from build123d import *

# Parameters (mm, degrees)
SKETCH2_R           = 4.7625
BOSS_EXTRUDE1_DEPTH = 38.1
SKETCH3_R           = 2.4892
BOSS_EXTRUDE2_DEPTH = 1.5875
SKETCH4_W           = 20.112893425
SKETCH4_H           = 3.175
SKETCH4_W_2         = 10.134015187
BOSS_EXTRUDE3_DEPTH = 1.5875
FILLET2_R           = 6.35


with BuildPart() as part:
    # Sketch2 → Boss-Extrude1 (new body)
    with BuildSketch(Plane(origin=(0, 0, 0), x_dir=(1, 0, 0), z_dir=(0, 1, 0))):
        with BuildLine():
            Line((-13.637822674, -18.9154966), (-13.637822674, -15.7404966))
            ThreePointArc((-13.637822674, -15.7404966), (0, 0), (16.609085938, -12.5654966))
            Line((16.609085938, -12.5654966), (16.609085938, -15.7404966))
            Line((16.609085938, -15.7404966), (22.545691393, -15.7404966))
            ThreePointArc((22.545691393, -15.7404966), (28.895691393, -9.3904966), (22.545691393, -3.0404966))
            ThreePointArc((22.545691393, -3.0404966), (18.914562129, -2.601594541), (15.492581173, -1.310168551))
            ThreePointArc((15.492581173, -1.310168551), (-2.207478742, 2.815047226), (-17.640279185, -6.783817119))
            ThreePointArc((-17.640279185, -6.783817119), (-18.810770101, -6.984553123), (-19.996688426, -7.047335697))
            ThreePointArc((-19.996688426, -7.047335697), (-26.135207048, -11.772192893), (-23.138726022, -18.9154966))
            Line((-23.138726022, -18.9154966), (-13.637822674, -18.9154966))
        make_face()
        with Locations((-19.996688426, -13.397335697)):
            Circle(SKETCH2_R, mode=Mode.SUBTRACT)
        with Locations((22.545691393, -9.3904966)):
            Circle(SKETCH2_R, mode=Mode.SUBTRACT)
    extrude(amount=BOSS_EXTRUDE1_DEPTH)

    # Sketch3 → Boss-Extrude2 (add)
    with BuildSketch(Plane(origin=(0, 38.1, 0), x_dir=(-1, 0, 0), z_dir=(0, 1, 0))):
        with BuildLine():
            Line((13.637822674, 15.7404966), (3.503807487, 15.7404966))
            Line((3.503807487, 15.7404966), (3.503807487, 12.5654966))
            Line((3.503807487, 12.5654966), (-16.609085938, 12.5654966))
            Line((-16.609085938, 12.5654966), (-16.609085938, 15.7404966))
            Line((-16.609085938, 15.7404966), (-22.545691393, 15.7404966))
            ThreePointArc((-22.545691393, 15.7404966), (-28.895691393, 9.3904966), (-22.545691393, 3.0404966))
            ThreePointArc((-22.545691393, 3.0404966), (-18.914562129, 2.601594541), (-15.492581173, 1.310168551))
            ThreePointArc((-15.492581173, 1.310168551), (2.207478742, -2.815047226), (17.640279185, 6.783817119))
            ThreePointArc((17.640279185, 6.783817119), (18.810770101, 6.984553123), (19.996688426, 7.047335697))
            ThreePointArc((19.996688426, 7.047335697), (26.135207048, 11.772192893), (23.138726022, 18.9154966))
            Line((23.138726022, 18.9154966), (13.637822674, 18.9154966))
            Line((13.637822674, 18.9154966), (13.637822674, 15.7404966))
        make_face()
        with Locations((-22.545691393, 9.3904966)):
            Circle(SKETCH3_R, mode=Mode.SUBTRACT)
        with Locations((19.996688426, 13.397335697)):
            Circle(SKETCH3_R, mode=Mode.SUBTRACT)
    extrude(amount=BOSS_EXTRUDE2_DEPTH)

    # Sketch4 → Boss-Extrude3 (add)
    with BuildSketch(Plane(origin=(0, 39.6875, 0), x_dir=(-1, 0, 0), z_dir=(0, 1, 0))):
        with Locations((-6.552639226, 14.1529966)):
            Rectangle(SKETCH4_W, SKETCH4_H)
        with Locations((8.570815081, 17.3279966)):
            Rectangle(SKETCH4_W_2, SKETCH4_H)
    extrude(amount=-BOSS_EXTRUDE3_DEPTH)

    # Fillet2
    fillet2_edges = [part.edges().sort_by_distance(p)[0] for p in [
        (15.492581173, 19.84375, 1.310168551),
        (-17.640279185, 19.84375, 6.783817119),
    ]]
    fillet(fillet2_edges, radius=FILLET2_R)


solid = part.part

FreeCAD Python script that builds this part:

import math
import FreeCAD as App
import Part
import Sketcher
from FreeCAD import Vector
Q = App.Units.Quantity


def edges_at(feature, points):
    """Names of the edges that pass closest to the given points."""
    edges = feature.Shape.Edges
    near = lambda p: min(range(len(edges)), key=lambda i: edges[i].distToShape(Part.Vertex(*p))[0])
    return sorted({f"Edge{near(p) + 1}" for p in points})


def add_polygon(sketch, points):
    """Adds a closed chain of lines whose ends are joined by coincident constraints."""
    first, n = sketch.GeometryCount, len(points)
    for a, b in zip(points, points[1:] + points[:1]):
        sketch.addGeometry(Part.LineSegment(App.Vector(*a, 0), App.Vector(*b, 0)), False)
    for i in range(n):
        sketch.addConstraint(Sketcher.Constraint("Coincident", first + i, 2, first + (i + 1) % n, 1))

doc = App.newDocument("Part")
params = doc.addObject("Spreadsheet::Sheet", "Params")
for row, (alias, value) in enumerate([
    ("sketch1_radius", "0.6 in"),
    ("sketch1_radius2", "0.4 in"),
    ("sketch1_radius3", "0.25 in"),
    ("sketch1_diameter", "0.375 in"),
    ("sketch1_height", "0.125 in"),
    ("pad1_length", "1.5 in"),
    ("sketch2_radius", "0.6 in"),
    ("sketch2_radius2", "0.4 in"),
    ("sketch2_radius3", "0.25 in"),
    ("sketch2_diameter", "0.196 in"),
    ("sketch2_height", "0.125 in"),
    ("pad2_length", "0.0625 in"),
    ("sketch3_height", "0.125 in"),
    ("pad3_length", "0.0625 in"),
    ("fillet_radius", "0.25 in"),
], start=1):
    params.set(f"A{row}", alias)
    params.set(f"B{row}", "=" + value)
    params.setAlias(f"B{row}", alias)

body = doc.addObject("PartDesign::Body", "Body")

sketch1 = body.newObject("Sketcher::SketchObject", "Sketch")
sketch1.AttachmentSupport = (doc.getObject("XZ_Plane"), [""])
sketch1.MapMode = "FlatFace"
sketch1.addGeometry(Part.LineSegment(Vector(-13.6, 18.9, 0), Vector(-13.6, 15.7, 0)), False)
sketch1.addGeometry(Part.ArcOfCircle(Part.Circle(Vector(1.6, 15.2, 0), Vector(0, 0, 1), 15.2), math.radians(178), math.radians(350)), False)
sketch1.addGeometry(Part.LineSegment(Vector(16.6, 12.6, 0), Vector(16.6, 15.7, 0)), False)
sketch1.addGeometry(Part.LineSegment(Vector(16.6, 15.7, 0), Vector(22.5, 15.7, 0)), False)
sketch1.addGeometry(Part.ArcOfCircle(Part.Circle(Vector(22.5, 9.4, 0), Vector(0, 0, 1), 6.3), math.radians(-90), math.radians(90)), False)
sketch1.addGeometry(Part.ArcOfCircle(Part.Circle(Vector(22.5, -12.2, 0), Vector(0, 0, 1), 15.2), math.radians(90), math.radians(118)), False)
sketch1.addGeometry(Part.ArcOfCircle(Part.Circle(Vector(1.7, 20.6, 0), Vector(0, 0, 1), 23.7), math.radians(-144), math.radians(-54)), False)
sketch1.addGeometry(Part.ArcOfCircle(Part.Circle(Vector(-19.9, -3.1, 0), Vector(0, 0, 1), 10.2), math.radians(76.92), math.radians(90.32)), False)
sketch1.addGeometry(Part.ArcOfCircle(Part.Circle(Vector(-20, 13.4, 0), Vector(0, 0, 1), 6.3), math.radians(120), math.radians(270)), False)
sketch1.addGeometry(Part.LineSegment(Vector(-23.1, 18.9, 0), Vector(-13.6, 18.9, 0)), False)
sketch1.addGeometry(Part.Circle(Vector(-20, 13.4, 0), Vector(0, 0, 1), 4.8), False)
sketch1.addGeometry(Part.Circle(Vector(22.5, 9.4, 0), Vector(0, 0, 1), 4.8), False)
sketch1.addConstraint(Sketcher.Constraint("Coincident", 0, 2, 1, 1))
sketch1.addConstraint(Sketcher.Constraint("Coincident", 1, 2, 2, 1))
sketch1.addConstraint(Sketcher.Constraint("Coincident", 2, 2, 3, 1))
sketch1.addConstraint(Sketcher.Constraint("Tangent", 3, 2, 4, 2))
sketch1.addConstraint(Sketcher.Constraint("Tangent", 4, 1, 5, 1))
sketch1.addConstraint(Sketcher.Constraint("Coincident", 5, 2, 6, 2))
sketch1.addConstraint(Sketcher.Constraint("Coincident", 6, 1, 7, 1))
sketch1.addConstraint(Sketcher.Constraint("Coincident", 7, 2, 8, 2))
sketch1.addConstraint(Sketcher.Constraint("Coincident", 8, 1, 9, 1))
sketch1.addConstraint(Sketcher.Constraint("Coincident", 9, 2, 0, 1))
sketch1.addConstraint(Sketcher.Constraint("Vertical", 0))
sketch1.addConstraint(Sketcher.Constraint("Vertical", 2))
sketch1.addConstraint(Sketcher.Constraint("Horizontal", 3))
sketch1.addConstraint(Sketcher.Constraint("Horizontal", 9))
sketch1.addConstraint(Sketcher.Constraint("Coincident", 10, 3, 8, 3))
sketch1.addConstraint(Sketcher.Constraint("Coincident", 11, 3, 4, 3))
sketch1.addConstraint(Sketcher.Constraint("Equal", 1, 5))
sketch1.addConstraint(Sketcher.Constraint("Equal", 4, 8))
sketch1.addConstraint(Sketcher.Constraint("Equal", 10, 11))
sketch1.addConstraint(Sketcher.Constraint("Horizontal", 0, 2, 2, 2))
sketch1.addConstraint(Sketcher.Constraint("Vertical", 4, 3, 5, 3))
sketch1.addConstraint(Sketcher.Constraint("Vertical", 10, 3, 7, 2))
sketch1.addConstraint(Sketcher.Constraint("Equal", 0, 2))
sketch1.addConstraint(Sketcher.Constraint("Radius", 1, Q("0.6 in")))
sketch1.addConstraint(Sketcher.Constraint("Radius", 7, Q("0.4 in")))
sketch1.addConstraint(Sketcher.Constraint("Radius", 4, Q("0.25 in")))
sketch1.addConstraint(Sketcher.Constraint("Diameter", 10, Q("0.375 in")))
sketch1.addConstraint(Sketcher.Constraint("DistanceY", 0, 2, 0, 1, Q("0.125 in")))
sketch1.addConstraint(Sketcher.Constraint("Radius", 6, Q("23.746023 mm")))
sketch1.addConstraint(Sketcher.Constraint("DistanceX", 1, 3, 4, 3, Q("20.954699 mm")))
sketch1.addConstraint(Sketcher.Constraint("DistanceX", 3, 1, 3, 2, Q("5.936605 mm")))
sketch1.addConstraint(Sketcher.Constraint("DistanceX", 9, 1, 9, 2, Q("9.500903 mm")))
sketch1.addConstraint(Sketcher.Constraint("DistanceX", -1, 1, 4, 3, Q("22.545691 mm")))
sketch1.addConstraint(Sketcher.Constraint("DistanceX", 7, 3, -1, 1, Q("19.93993 mm")))
sketch1.addConstraint(Sketcher.Constraint("DistanceX", 8, 3, -1, 1, Q("19.996688 mm")))
sketch1.addConstraint(Sketcher.Constraint("DistanceX", -1, 1, 5, 2, Q("15.492581 mm")))
sketch1.addConstraint(Sketcher.Constraint("DistanceY", -1, 1, 5, 2, Q("1.310169 mm")))
sketch1.addConstraint(Sketcher.Constraint("DistanceX", 6, 1, -1, 1, Q("17.640279 mm")))
sketch1.setExpression("Constraints[23]", "Params.sketch1_radius")
sketch1.setExpression("Constraints[24]", "Params.sketch1_radius2")
sketch1.setExpression("Constraints[25]", "Params.sketch1_radius3")
sketch1.setExpression("Constraints[26]", "Params.sketch1_diameter")
sketch1.setExpression("Constraints[27]", "Params.sketch1_height")
pad1 = body.newObject("PartDesign::Pad", "Pad")
pad1.Profile = sketch1
pad1.setExpression("Length", "Params.pad1_length")
pad1.Reversed = True

sketch2 = body.newObject("Sketcher::SketchObject", "Sketch001")
sketch2.AttachmentSupport = (doc.getObject("XZ_Plane"), [""])
sketch2.MapMode = "FlatFace"
sketch2.AttachmentOffset = App.Placement(Vector(0, 0, -1.5 * 25.4), App.Rotation())
sketch2.addGeometry(Part.LineSegment(Vector(-13.6, 15.7, 0), Vector(-3.5, 15.7, 0)), False)
sketch2.addGeometry(Part.LineSegment(Vector(-3.5, 15.7, 0), Vector(-3.5, 12.6, 0)), False)
sketch2.addGeometry(Part.LineSegment(Vector(-3.5, 12.6, 0), Vector(16.6, 12.6, 0)), False)
sketch2.addGeometry(Part.LineSegment(Vector(16.6, 12.6, 0), Vector(16.6, 15.7, 0)), False)
sketch2.addGeometry(Part.LineSegment(Vector(16.6, 15.7, 0), Vector(22.5, 15.7, 0)), False)
sketch2.addGeometry(Part.ArcOfCircle(Part.Circle(Vector(22.5, 9.4, 0), Vector(0, 0, 1), 6.3), math.radians(-90), math.radians(90)), False)
sketch2.addGeometry(Part.ArcOfCircle(Part.Circle(Vector(22.5, -12.2, 0), Vector(0, 0, 1), 15.2), math.radians(90), math.radians(118)), False)
sketch2.addGeometry(Part.ArcOfCircle(Part.Circle(Vector(1.7, 20.6, 0), Vector(0, 0, 1), 23.7), math.radians(-144), math.radians(-54)), False)
sketch2.addGeometry(Part.ArcOfCircle(Part.Circle(Vector(-19.9, -3.1, 0), Vector(0, 0, 1), 10.2), math.radians(76.92), math.radians(90.32)), False)
sketch2.addGeometry(Part.ArcOfCircle(Part.Circle(Vector(-20, 13.4, 0), Vector(0, 0, 1), 6.3), math.radians(120), math.radians(270)), False)
sketch2.addGeometry(Part.LineSegment(Vector(-23.1, 18.9, 0), Vector(-13.6, 18.9, 0)), False)
sketch2.addGeometry(Part.LineSegment(Vector(-13.6, 18.9, 0), Vector(-13.6, 15.7, 0)), False)
sketch2.addGeometry(Part.Circle(Vector(22.5, 9.4, 0), Vector(0, 0, 1), 2.5), False)
sketch2.addGeometry(Part.Circle(Vector(-20, 13.4, 0), Vector(0, 0, 1), 2.5), False)
sketch2.addConstraint(Sketcher.Constraint("Coincident", 0, 2, 1, 1))
sketch2.addConstraint(Sketcher.Constraint("Coincident", 1, 2, 2, 1))
sketch2.addConstraint(Sketcher.Constraint("Coincident", 2, 2, 3, 1))
sketch2.addConstraint(Sketcher.Constraint("Coincident", 3, 2, 4, 1))
sketch2.addConstraint(Sketcher.Constraint("Tangent", 4, 2, 5, 2))
sketch2.addConstraint(Sketcher.Constraint("Tangent", 5, 1, 6, 1))
sketch2.addConstraint(Sketcher.Constraint("Coincident", 6, 2, 7, 2))
sketch2.addConstraint(Sketcher.Constraint("Coincident", 7, 1, 8, 1))
sketch2.addConstraint(Sketcher.Constraint("Coincident", 8, 2, 9, 2))
sketch2.addConstraint(Sketcher.Constraint("Coincident", 9, 1, 10, 1))
sketch2.addConstraint(Sketcher.Constraint("Coincident", 10, 2, 11, 1))
sketch2.addConstraint(Sketcher.Constraint("Coincident", 11, 2, 0, 1))
sketch2.addConstraint(Sketcher.Constraint("Horizontal", 0))
sketch2.addConstraint(Sketcher.Constraint("Vertical", 1))
sketch2.addConstraint(Sketcher.Constraint("Horizontal", 2))
sketch2.addConstraint(Sketcher.Constraint("Vertical", 3))
sketch2.addConstraint(Sketcher.Constraint("Horizontal", 4))
sketch2.addConstraint(Sketcher.Constraint("Horizontal", 10))
sketch2.addConstraint(Sketcher.Constraint("Vertical", 11))
sketch2.addConstraint(Sketcher.Constraint("Coincident", 12, 3, 5, 3))
sketch2.addConstraint(Sketcher.Constraint("Coincident", 13, 3, 9, 3))
sketch2.addConstraint(Sketcher.Constraint("Equal", 5, 9))
sketch2.addConstraint(Sketcher.Constraint("Equal", 12, 13))
sketch2.addConstraint(Sketcher.Constraint("Horizontal", 0, 2, 3, 2))
sketch2.addConstraint(Sketcher.Constraint("Vertical", 5, 3, 6, 3))
sketch2.addConstraint(Sketcher.Constraint("Vertical", 13, 3, 8, 2))
sketch2.addConstraint(Sketcher.Constraint("Equal", 3, 11))
sketch2.addConstraint(Sketcher.Constraint("Radius", 6, Q("0.6 in")))
sketch2.addConstraint(Sketcher.Constraint("Radius", 8, Q("0.4 in")))
sketch2.addConstraint(Sketcher.Constraint("Radius", 5, Q("0.25 in")))
sketch2.addConstraint(Sketcher.Constraint("Diameter", 12, Q("0.196 in")))
sketch2.addConstraint(Sketcher.Constraint("DistanceY", 1, 2, 1, 1, Q("0.125 in")))
sketch2.addConstraint(Sketcher.Constraint("Radius", 7, Q("23.746023 mm")))
sketch2.addConstraint(Sketcher.Constraint("DistanceX", 0, 2, 5, 3, Q("26.049499 mm")))
sketch2.addConstraint(Sketcher.Constraint("DistanceX", 0, 1, 0, 2, Q("10.134015 mm")))
sketch2.addConstraint(Sketcher.Constraint("DistanceX", 2, 1, 2, 2, Q("20.112893 mm")))
sketch2.addConstraint(Sketcher.Constraint("DistanceX", 10, 1, 10, 2, Q("9.500903 mm")))
sketch2.addConstraint(Sketcher.Constraint("DistanceX", -1, 1, 5, 3, Q("22.545691 mm")))
sketch2.addConstraint(Sketcher.Constraint("DistanceX", 8, 3, -1, 1, Q("19.93993 mm")))
sketch2.addConstraint(Sketcher.Constraint("DistanceX", 9, 3, -1, 1, Q("19.996688 mm")))
sketch2.addConstraint(Sketcher.Constraint("DistanceX", -1, 1, 6, 2, Q("15.492581 mm")))
sketch2.addConstraint(Sketcher.Constraint("DistanceY", -1, 1, 6, 2, Q("1.310169 mm")))
sketch2.addConstraint(Sketcher.Constraint("DistanceX", 7, 1, -1, 1, Q("17.640279 mm")))
sketch2.setExpression("Constraints[27]", "Params.sketch2_radius")
sketch2.setExpression("Constraints[28]", "Params.sketch2_radius2")
sketch2.setExpression("Constraints[29]", "Params.sketch2_radius3")
sketch2.setExpression("Constraints[30]", "Params.sketch2_diameter")
sketch2.setExpression("Constraints[31]", "Params.sketch2_height")
pad2 = body.newObject("PartDesign::Pad", "Pad001")
pad2.Profile = sketch2
pad2.setExpression("Length", "Params.pad2_length")
pad2.Reversed = True

sketch3 = body.newObject("Sketcher::SketchObject", "Sketch002")
sketch3.AttachmentSupport = (doc.getObject("XZ_Plane"), [""])
sketch3.MapMode = "FlatFace"
sketch3.AttachmentOffset = App.Placement(Vector(0, 0, -1.5625 * 25.4), App.Rotation())
add_polygon(sketch3, [(16.6, 15.7), (16.6, 12.6), (-3.5, 12.6), (-3.5, 15.7)])
add_polygon(sketch3, [(-3.5, 18.9), (-3.5, 15.7), (-13.6, 15.7), (-13.6, 18.9)])
sketch3.addConstraint(Sketcher.Constraint("Vertical", 0))
sketch3.addConstraint(Sketcher.Constraint("Horizontal", 1))
sketch3.addConstraint(Sketcher.Constraint("Vertical", 2))
sketch3.addConstraint(Sketcher.Constraint("Horizontal", 3))
sketch3.addConstraint(Sketcher.Constraint("Vertical", 4))
sketch3.addConstraint(Sketcher.Constraint("Horizontal", 5))
sketch3.addConstraint(Sketcher.Constraint("Vertical", 6))
sketch3.addConstraint(Sketcher.Constraint("Horizontal", 7))
sketch3.addConstraint(Sketcher.Constraint("Coincident", 4, 2, 2, 2))
sketch3.addConstraint(Sketcher.Constraint("Equal", 2, 4))
sketch3.addConstraint(Sketcher.Constraint("DistanceY", 0, 2, 0, 1, Q("0.125 in")))
sketch3.addConstraint(Sketcher.Constraint("DistanceX", 1, 2, 1, 1, Q("20.112893 mm")))
sketch3.addConstraint(Sketcher.Constraint("DistanceX", 5, 2, 5, 1, Q("10.134015 mm")))
sketch3.addConstraint(Sketcher.Constraint("DistanceX", -1, 1, 0, 2, Q("16.609086 mm")))
sketch3.addConstraint(Sketcher.Constraint("DistanceY", -1, 1, 0, 2, Q("12.565497 mm")))
sketch3.setExpression("Constraints[18]", "Params.sketch3_height")
pad3 = body.newObject("PartDesign::Pad", "Pad002")
pad3.Profile = sketch3
pad3.setExpression("Length", "Params.pad3_length")
doc.recompute()

fillet = body.newObject("PartDesign::Fillet", "Fillet")
fillet.Base = (pad3, edges_at(pad3, [(15.493, 19.844, 1.31), (-17.64, 19.844, 6.784)]))
fillet.setExpression("Radius", "Params.fillet_radius")

doc.recompute()
